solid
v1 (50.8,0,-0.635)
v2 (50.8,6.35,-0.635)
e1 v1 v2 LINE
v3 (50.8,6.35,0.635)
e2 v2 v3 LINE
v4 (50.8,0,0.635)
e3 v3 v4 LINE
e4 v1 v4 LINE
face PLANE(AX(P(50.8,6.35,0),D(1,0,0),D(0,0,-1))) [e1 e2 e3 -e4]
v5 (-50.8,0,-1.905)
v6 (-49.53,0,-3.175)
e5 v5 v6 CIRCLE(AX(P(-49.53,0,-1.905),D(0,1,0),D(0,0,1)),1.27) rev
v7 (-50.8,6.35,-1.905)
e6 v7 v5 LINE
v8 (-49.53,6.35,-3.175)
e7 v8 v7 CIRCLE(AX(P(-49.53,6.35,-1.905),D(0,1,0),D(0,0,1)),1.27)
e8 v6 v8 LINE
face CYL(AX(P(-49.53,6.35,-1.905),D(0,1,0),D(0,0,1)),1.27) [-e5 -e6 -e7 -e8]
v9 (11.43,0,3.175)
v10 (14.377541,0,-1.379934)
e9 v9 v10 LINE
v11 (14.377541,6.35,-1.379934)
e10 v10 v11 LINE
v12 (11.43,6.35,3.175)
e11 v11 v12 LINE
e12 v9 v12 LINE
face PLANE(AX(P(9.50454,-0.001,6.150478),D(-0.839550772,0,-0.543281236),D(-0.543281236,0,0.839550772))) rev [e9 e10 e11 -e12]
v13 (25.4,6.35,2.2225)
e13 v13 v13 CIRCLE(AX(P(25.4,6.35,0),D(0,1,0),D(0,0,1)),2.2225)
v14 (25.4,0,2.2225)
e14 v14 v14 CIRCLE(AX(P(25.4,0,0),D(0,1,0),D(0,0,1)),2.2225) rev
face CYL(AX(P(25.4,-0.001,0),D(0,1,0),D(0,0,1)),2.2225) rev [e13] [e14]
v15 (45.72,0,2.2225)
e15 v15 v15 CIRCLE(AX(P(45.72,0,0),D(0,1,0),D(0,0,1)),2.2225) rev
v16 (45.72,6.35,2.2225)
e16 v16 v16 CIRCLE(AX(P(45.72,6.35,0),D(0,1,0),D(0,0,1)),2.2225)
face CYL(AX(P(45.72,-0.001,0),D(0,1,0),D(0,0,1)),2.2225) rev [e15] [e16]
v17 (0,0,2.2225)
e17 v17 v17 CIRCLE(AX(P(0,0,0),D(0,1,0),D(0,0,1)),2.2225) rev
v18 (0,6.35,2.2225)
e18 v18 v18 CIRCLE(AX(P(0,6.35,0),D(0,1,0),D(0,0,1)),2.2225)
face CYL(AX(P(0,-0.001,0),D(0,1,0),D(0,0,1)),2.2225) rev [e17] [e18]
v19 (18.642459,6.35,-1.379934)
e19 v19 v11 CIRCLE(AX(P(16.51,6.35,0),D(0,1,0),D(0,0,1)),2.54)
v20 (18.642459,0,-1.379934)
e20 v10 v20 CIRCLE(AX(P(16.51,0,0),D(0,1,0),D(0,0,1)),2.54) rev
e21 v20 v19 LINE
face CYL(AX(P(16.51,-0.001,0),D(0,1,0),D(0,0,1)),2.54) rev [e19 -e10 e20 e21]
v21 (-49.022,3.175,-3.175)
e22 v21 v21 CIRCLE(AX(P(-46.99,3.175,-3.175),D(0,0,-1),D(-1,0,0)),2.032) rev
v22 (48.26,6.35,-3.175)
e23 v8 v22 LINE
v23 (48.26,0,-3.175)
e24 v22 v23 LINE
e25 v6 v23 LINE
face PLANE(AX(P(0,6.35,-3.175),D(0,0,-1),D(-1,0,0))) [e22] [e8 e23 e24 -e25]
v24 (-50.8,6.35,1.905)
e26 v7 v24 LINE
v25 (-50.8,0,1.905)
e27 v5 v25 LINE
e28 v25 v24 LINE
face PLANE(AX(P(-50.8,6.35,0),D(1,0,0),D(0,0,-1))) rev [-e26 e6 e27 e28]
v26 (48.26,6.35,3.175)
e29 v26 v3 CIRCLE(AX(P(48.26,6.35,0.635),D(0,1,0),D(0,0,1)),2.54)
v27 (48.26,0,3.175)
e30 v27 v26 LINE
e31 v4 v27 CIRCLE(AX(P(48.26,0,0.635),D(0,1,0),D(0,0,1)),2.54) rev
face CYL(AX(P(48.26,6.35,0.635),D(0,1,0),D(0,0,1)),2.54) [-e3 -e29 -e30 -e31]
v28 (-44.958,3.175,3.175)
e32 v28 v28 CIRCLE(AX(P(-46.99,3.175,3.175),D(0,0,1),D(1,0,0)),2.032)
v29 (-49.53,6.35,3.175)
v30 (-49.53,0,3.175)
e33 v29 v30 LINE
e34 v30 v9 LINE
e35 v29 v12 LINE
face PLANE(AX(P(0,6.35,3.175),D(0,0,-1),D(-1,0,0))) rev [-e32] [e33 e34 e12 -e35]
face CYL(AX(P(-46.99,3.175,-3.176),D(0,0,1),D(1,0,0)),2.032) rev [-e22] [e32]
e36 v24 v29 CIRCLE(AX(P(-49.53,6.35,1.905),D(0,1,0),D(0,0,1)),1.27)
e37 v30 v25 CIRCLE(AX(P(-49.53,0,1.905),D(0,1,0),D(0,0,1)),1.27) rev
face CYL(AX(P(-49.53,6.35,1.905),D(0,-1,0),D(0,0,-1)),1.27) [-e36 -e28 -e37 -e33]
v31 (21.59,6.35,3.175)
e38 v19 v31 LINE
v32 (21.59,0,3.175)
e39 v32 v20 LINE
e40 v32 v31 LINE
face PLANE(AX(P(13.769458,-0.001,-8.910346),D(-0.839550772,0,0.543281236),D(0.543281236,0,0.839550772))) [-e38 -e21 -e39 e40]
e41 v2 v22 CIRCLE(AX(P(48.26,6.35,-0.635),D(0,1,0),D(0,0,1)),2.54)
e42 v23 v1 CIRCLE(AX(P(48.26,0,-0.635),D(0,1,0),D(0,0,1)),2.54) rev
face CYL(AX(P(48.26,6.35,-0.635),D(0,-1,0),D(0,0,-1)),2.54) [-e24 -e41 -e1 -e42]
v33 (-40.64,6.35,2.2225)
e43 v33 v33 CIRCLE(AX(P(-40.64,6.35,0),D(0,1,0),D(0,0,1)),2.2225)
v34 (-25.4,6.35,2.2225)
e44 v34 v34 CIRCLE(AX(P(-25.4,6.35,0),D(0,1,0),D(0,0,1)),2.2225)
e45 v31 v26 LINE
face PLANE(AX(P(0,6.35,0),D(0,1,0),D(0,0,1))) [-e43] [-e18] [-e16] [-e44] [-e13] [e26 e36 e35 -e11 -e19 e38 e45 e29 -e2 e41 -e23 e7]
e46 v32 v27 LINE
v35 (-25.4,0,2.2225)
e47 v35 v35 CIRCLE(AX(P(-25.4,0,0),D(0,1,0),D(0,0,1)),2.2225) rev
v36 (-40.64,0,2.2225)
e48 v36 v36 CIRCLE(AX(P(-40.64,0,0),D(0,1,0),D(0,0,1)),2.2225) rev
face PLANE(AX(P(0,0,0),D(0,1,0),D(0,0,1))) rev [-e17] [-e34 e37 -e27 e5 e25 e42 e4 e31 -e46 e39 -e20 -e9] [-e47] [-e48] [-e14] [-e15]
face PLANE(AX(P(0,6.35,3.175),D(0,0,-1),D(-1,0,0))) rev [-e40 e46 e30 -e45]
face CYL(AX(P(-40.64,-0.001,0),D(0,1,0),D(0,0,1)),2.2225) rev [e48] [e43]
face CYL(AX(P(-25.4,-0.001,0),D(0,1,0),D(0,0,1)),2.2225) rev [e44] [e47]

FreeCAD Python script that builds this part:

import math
import FreeCAD as App
import Part
import Sketcher
Q = App.Units.Quantity


def edges_at(feature, points):
    """Names of the edges that pass closest to the given points."""
    edges = feature.Shape.Edges
    near = lambda p: min(range(len(edges)), key=lambda i: edges[i].distToShape(Part.Vertex(*p))[0])
    return sorted({f"Edge{near(p) + 1}" for p in points})


def add_polygon(sketch, points):
    """Adds a closed chain of lines whose ends are joined by coincident constraints."""
    first, n = sketch.GeometryCount, len(points)
    for a, b in zip(points, points[1:] + points[:1]):
        sketch.addGeometry(Part.LineSegment(App.Vector(*a, 0), App.Vector(*b, 0)), False)
    for i in range(n):
        sketch.addConstraint(Sketcher.Constraint("Coincident", first + i, 2, first + (i + 1) % n, 1))

doc = App.newDocument("Part")
params = doc.addObject("Spreadsheet::Sheet", "Params")
for row, (alias, value) in enumerate([
    ("sketch1_width", "4 in"),
    ("sketch1_height", "0.25 in"),
    ("pad1_length", "0.25 in"),
    ("fillet_radius", "0.1 in"),
    ("fillet2_radius", "0.05 in"),
    ("sketch2_diameter", "0.175 in"),
    ("sketch3_diameter", "0.175 in"),
    ("sketch4_diameter", "0.175 in"),
    ("sketch5_diameter", "0.175 in"),
    ("sketch6_diameter", "0.175 in"),
    ("sketch7_diameter", "0.16 in"),
    ("sketch8_radius", "0.1 in"),
    ("sketch8_width", "0.4 in"),
], start=1):
    params.set(f"A{row}", alias)
    params.set(f"B{row}", "=" + value)
    params.setAlias(f"B{row}", alias)

body = doc.addObject("PartDesign::Body", "Body")

sketch1 = body.newObject("Sketcher::SketchObject", "Sketch")
sketch1.AttachmentSupport = (doc.getObject("XZ_Plane"), [""])
sketch1.MapMode = "FlatFace"
add_polygon(sketch1, [(-51, -3), (-51, 3), (51, 3), (51, -3)])
sketch1.addConstraint([
    Sketcher.Constraint("Vertical", 0),
    Sketcher.Constraint("Horizontal", 1),
    Sketcher.Constraint("Vertical", 2),
    Sketcher.Constraint("Horizontal", 3),
    Sketcher.Constraint("Symmetric", 0, 2, 2, 2, -1, 1),
    Sketcher.Constraint("DistanceX", 1, 1, 1, 2, Q("4 in")),
    Sketcher.Constraint("DistanceY", 0, 1, 0, 2, Q("0.25 in")),
])
sketch1.setExpression("Constraints[9]", "Params.sketch1_width")
sketch1.setExpression("Constraints[10]", "Params.sketch1_height")
pad1 = body.newObject("PartDesign::Pad", "Pad")
pad1.Profile = sketch1
pad1.setExpression("Length", "Params.pad1_length")
pad1.Reversed = True
doc.recompute()

fillet = body.newObject("PartDesign::Fillet", "Fillet")
fillet.Base = (pad1, edges_at(pad1, [(50.8, 3.175, 3.175), (50.8, 3.175, -3.175)]))
fillet.setExpression("Radius", "Params.fillet_radius")
doc.recompute()

fillet2 = body.newObject("PartDesign::Fillet", "Fillet001")
fillet2.Base = (fillet, edges_at(fillet, [(-50.8, 3.175, 3.175), (-50.8, 3.175, -3.175)]))
fillet2.setExpression("Radius", "Params.fillet2_radius")

sketch2 = body.newObject("Sketcher::SketchObject", "Sketch001")
sketch2.AttachmentSupport = (doc.getObject("XZ_Plane"), [""])
sketch2.MapMode = "FlatFace"
sketch2.AttachmentOffset = App.Placement(App.Vector(0, 0, -0.25 * 25.4), App.Rotation())
sketch2.addGeometry(Part.Circle(App.Vector(-40.6, 0, 0), App.Vector(0, 0, 1), 2.2), False)
sketch2.addConstraint([
    Sketcher.Constraint("PointOnObject", 0, 3, -1),
    Sketcher.Constraint("Diameter", 0, Q("0.175 in")),
    Sketcher.Constraint("DistanceX", 0, 3, -1, 1, Q("1.6 in")),
])
sketch2.setExpression("Constraints[1]", "Params.sketch2_diameter")
pocket1 = body.newObject("PartDesign::Pocket", "Pocket")
pocket1.Profile = sketch2
pocket1.Type = "UpToFirst"
pocket1.Reversed = True

sketch3 = body.newObject("Sketcher::SketchObject", "Sketch002")
sketch3.AttachmentSupport = (doc.getObject("XZ_Plane"), [""])
sketch3.MapMode = "FlatFace"
sketch3.AttachmentOffset = App.Placement(App.Vector(0, 0, -0.25 * 25.4), App.Rotation())
sketch3.addGeometry(Part.Circle(App.Vector(45.7, 0, 0), App.Vector(0, 0, 1), 2.2), False)
sketch3.addConstraint([
    Sketcher.Constraint("PointOnObject", 0, 3, -1),
    Sketcher.Constraint("Diameter", 0, Q("0.175 in")),
    Sketcher.Constraint("DistanceX", -1, 1, 0, 3, Q("1.8 in")),
])
sketch3.setExpression("Constraints[1]", "Params.sketch3_diameter")
pocket2 = body.newObject("PartDesign::Pocket", "Pocket001")
pocket2.Profile = sketch3
pocket2.Type = "UpToFirst"
pocket2.Reversed = True

sketch4 = body.newObject("Sketcher::SketchObject", "Sketch003")
sketch4.AttachmentSupport = (doc.getObject("XZ_Plane"), [""])
sketch4.MapMode = "FlatFace"
sketch4.AttachmentOffset = App.Placement(App.Vector(0, 0, -0.25 * 25.4), App.Rotation())
sketch4.addGeometry(Part.Circle(App.Vector(25.4, 0, 0), App.Vector(0, 0, 1), 2.2), False)
sketch4.addConstraint([
    Sketcher.Constraint("PointOnObject", 0, 3, -1),
    Sketcher.Constraint("Diameter", 0, Q("0.175 in")),
    Sketcher.Constraint("DistanceX", -1, 1, 0, 3, Q("1 in")),
])
sketch4.setExpression("Constraints[1]", "Params.sketch4_diameter")
pocket3 = body.newObject("PartDesign::Pocket", "Pocket002")
pocket3.Profile = sketch4
pocket3.Type = "UpToFirst"
pocket3.Reversed = True

sketch5 = body.newObject("Sketcher::SketchObject", "Sketch004")
sketch5.AttachmentSupport = (doc.getObject("XZ_Plane"), [""])
sketch5.MapMode = "FlatFace"
sketch5.AttachmentOffset = App.Placement(App.Vector(0, 0, -0.25 * 25.4), App.Rotation())
sketch5.addGeometry(Part.Circle(App.Vector(-25.4, 0, 0), App.Vector(0, 0, 1), 2.2), False)
sketch5.addConstraint([
    Sketcher.Constraint("PointOnObject", 0, 3, -1),
    Sketcher.Constraint("Diameter", 0, Q("0.175 in")),
    Sketcher.Constraint("DistanceX", 0, 3, -1, 1, Q("1 in")),
])
sketch5.setExpression("Constraints[1]", "Params.sketch5_diameter")
pocket4 = body.newObject("PartDesign::Pocket", "Pocket003")
pocket4.Profile = sketch5
pocket4.Type = "UpToFirst"
pocket4.Reversed = True

sketch6 = body.newObject("Sketcher::SketchObject", "Sketch005")
sketch6.AttachmentSupport = (doc.getObject("XZ_Plane"), [""])
sketch6.MapMode = "FlatFace"
sketch6.AttachmentOffset = App.Placement(App.Vector(0, 0, -0.25 * 25.4), App.Rotation())
sketch6.addGeometry(Part.Circle(App.Vector(0, 0, 0), App.Vector(0, 0, 1), 2.2), False)
sketch6.addConstraint([
    Sketcher.Constraint("Coincident", 0, 3, -1, 1),
    Sketcher.Constraint("Diameter", 0, Q("0.175 in")),
])
sketch6.setExpression("Constraints[1]", "Params.sketch6_diameter")
pocket5 = body.newObject("PartDesign::Pocket", "Pocket004")
pocket5.Profile = sketch6
pocket5.Type = "UpToFirst"
pocket5.Reversed = True

sketch7 = body.newObject("Sketcher::SketchObject", "Sketch006")
sketch7.AttachmentSupport = (doc.getObject("XY_Plane"), [""])
sketch7.MapMode = "FlatFace"
sketch7.AttachmentOffset = App.Placement(App.Vector(0, 0, 0.125 * 25.4), App.Rotation())
sketch7.addGeometry(Part.Circle(App.Vector(-47, 3.2, 0), App.Vector(0, 0, 1), 2), False)
sketch7.addConstraint([
    Sketcher.Constraint("Diameter", 0, Q("0.16 in")),
    Sketcher.Constraint("DistanceX", 0, 3, -1, 1, Q("1.85 in")),
    Sketcher.Constraint("DistanceY", -1, 1, 0, 3, Q("0.125 in")),
])
sketch7.setExpression("Constraints[0]", "Params.sketch7_diameter")
pocket6 = body.newObject("PartDesign::Pocket", "Pocket005")
pocket6.Profile = sketch7
pocket6.Type = "UpToFirst"

sketch8 = body.newObject("Sketcher::SketchObject", "Sketch007")
sketch8.AttachmentSupport = (doc.getObject("XZ_Plane"), [""])
sketch8.MapMode = "FlatFace"
sketch8.AttachmentOffset = App.Placement(App.Vector(0, 0, -0.25 * 25.4), App.Rotation())
sketch8.addGeometry([
    Part.LineSegment(App.Vector(21.6, 3.2, 0), App.Vector(18.6, -1.4, 0)),
    Part.ArcOfCircle(Part.Circle(App.Vector(16.5, 0, 0), App.Vector(0, 0, 1), 2.5), math.radians(-147), math.radians(-33)),
    Part.LineSegment(App.Vector(14.4, -1.4, 0), App.Vector(11.4, 3.2, 0)),
    Part.LineSegment(App.Vector(11.4, 3.2, 0), App.Vector(21.6, 3.2, 0)),
], False)
sketch8.addConstraint([
    Sketcher.Constraint("Tangent", 0, 2, 1, 2),
    Sketcher.Constraint("Tangent", 1, 1, 2, 1),
    Sketcher.Constraint("Coincident", 2, 2, 3, 1),
    Sketcher.Constraint("Coincident", 3, 2, 0, 1),
    Sketcher.Constraint("Horizontal", 3),
    Sketcher.Constraint("PointOnObject", 1, 3, -1),
    Sketcher.Constraint("Horizontal", 0, 2, 1, 1),
    Sketcher.Constraint("Radius", 1, Q("0.1 in")),
    Sketcher.Constraint("DistanceX", 3, 1, 3, 2, Q("0.4 in")),
    Sketcher.Constraint("DistanceX", -1, 1, 1, 3, Q("0.65 in")),
    Sketcher.Constraint("DistanceY", -1, 1, 2, 2, Q("0.125 in")),
])
sketch8.setExpression("Constraints[7]", "Params.sketch8_radius")
sketch8.setExpression("Constraints[8]", "Params.sketch8_width")
pocket7 = body.newObject("PartDesign::Pocket", "Pocket006")
pocket7.Profile = sketch8
pocket7.Type = "UpToFirst"
pocket7.Reversed = True

doc.recompute()
